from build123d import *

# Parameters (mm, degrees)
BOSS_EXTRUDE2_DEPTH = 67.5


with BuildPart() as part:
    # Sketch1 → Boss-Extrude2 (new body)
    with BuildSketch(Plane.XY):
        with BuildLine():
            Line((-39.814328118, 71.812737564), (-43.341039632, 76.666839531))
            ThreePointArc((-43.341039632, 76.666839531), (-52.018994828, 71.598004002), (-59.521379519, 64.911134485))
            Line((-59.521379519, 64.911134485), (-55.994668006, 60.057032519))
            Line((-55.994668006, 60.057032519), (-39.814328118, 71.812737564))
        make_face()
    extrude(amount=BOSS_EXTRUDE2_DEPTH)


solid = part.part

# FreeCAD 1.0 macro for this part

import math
import FreeCAD as App
import Part
import Sketcher
from FreeCAD import Vector
Q = App.Units.Quantity

doc = App.newDocument("Part")
body = doc.addObject("PartDesign::Body", "Body")

# Sketch on XY plane
sketch1 = doc.addObject("Sketcher::SketchObject", "Sketch")
body.addObject(sketch1)
sketch1.AttachmentSupport = (doc.XY_Plane, [""])
sketch1.MapMode = "FlatFace"
sketch1.addGeometry(Part.LineSegment(Vector(-40, 72, 0), Vector(-43, 77, 0)), False)
sketch1.addGeometry(Part.ArcOfCircle(Part.Circle(Vector(-22, 31, 0), Vector(0, 0, 1), 51), math.radians(115), math.radians(137)), False)
sketch1.addGeometry(Part.LineSegment(Vector(-60, 65, 0), Vector(-56, 60, 0)), False)
sketch1.addGeometry(Part.LineSegment(Vector(-56, 60, 0), Vector(-40, 72, 0)), False)
sketch1.addConstraint(Sketcher.Constraint("Coincident", 0, 2, 1, 1))
sketch1.addConstraint(Sketcher.Constraint("Coincident", 1, 2, 2, 1))
sketch1.addConstraint(Sketcher.Constraint("Coincident", 2, 2, 3, 1))
sketch1.addConstraint(Sketcher.Constraint("Coincident", 3, 2, 0, 1))
sketch1.addConstraint(Sketcher.Constraint("Parallel", 0, 2))
sketch1.addConstraint(Sketcher.Constraint("Perpendicular", 2, 3))
sketch1.addConstraint(Sketcher.Constraint("Equal", 0, 2))
sketch1.addConstraint(Sketcher.Constraint("Radius", 1, 50.5))
sketch1.addConstraint(Sketcher.Constraint("Angle", 0, Q("126 deg")))
sketch1.addConstraint(Sketcher.Constraint("Distance", 0, 6.0))
sketch1.addConstraint(Sketcher.Constraint("Distance", 3, 20.0))
sketch1.addConstraint(Sketcher.Constraint("DistanceX", 1, 3, -1, 1, 22.33584))
sketch1.addConstraint(Sketcher.Constraint("DistanceY", -1, 1, 0, 2, 76.66684))
pad1 = doc.addObject("PartDesign::Pad", "Pad")
body.addObject(pad1)
pad1.Profile = sketch1
pad1.Length = 67.5

doc.recompute()
